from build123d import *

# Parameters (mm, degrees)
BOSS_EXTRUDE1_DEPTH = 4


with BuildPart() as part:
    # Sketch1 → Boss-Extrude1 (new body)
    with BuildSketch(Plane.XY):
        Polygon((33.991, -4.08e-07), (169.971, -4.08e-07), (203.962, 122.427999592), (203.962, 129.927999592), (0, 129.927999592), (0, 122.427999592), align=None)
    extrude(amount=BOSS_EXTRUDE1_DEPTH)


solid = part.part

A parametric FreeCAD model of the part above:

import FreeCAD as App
import Part
import Sketcher
from FreeCAD import Vector

doc = App.newDocument("Part")
body = doc.addObject("PartDesign::Body", "Body")

# Sketch on XY plane
sketch1 = body.newObject("Sketcher::SketchObject", "Sketch")
sketch1.AttachmentSupport = (doc.getObject("XY_Plane"), [""])
sketch1.MapMode = "FlatFace"
sketch1.addGeometry(Part.LineSegment(Vector(34, 0, 0), Vector(170, 0, 0)), False)
sketch1.addGeometry(Part.LineSegment(Vector(170, 0, 0), Vector(204, 122, 0)), False)
sketch1.addGeometry(Part.LineSegment(Vector(204, 122, 0), Vector(204, 130, 0)), False)
sketch1.addGeometry(Part.LineSegment(Vector(204, 130, 0), Vector(0, 130, 0)), False)
sketch1.addGeometry(Part.LineSegment(Vector(0, 130, 0), Vector(0, 122, 0)), False)
sketch1.addGeometry(Part.LineSegment(Vector(0, 122, 0), Vector(34, 0, 0)), False)
sketch1.addConstraint(Sketcher.Constraint("Coincident", 0, 2, 1, 1))
sketch1.addConstraint(Sketcher.Constraint("Coincident", 1, 2, 2, 1))
sketch1.addConstraint(Sketcher.Constraint("Coincident", 2, 2, 3, 1))
sketch1.addConstraint(Sketcher.Constraint("Coincident", 3, 2, 4, 1))
sketch1.addConstraint(Sketcher.Constraint("Coincident", 4, 2, 5, 1))
sketch1.addConstraint(Sketcher.Constraint("Coincident", 5, 2, 0, 1))
sketch1.addConstraint(Sketcher.Constraint("Horizontal", 0))
sketch1.addConstraint(Sketcher.Constraint("Vertical", 2))
sketch1.addConstraint(Sketcher.Constraint("Horizontal", 3))
sketch1.addConstraint(Sketcher.Constraint("Vertical", 4))
sketch1.addConstraint(Sketcher.Constraint("PointOnObject", 0, 2, -1))
sketch1.addConstraint(Sketcher.Constraint("PointOnObject", 3, 2, -2))
sketch1.addConstraint(Sketcher.Constraint("Horizontal", 1, 2, 4, 2))
sketch1.addConstraint(Sketcher.Constraint("Equal", 1, 5))
sketch1.addConstraint(Sketcher.Constraint("DistanceY", 2, 1, 2, 2, 7.5))
sketch1.addConstraint(Sketcher.Constraint("DistanceX", 0, 1, 0, 2, 135.98))
sketch1.addConstraint(Sketcher.Constraint("DistanceX", 3, 2, 3, 1, 203.962))
sketch1.addConstraint(Sketcher.Constraint("DistanceY", -1, 1, 1, 2, 122.428))
pad1 = body.newObject("PartDesign::Pad", "Pad")
pad1.Profile = sketch1
pad1.Length = 4

doc.recompute()
